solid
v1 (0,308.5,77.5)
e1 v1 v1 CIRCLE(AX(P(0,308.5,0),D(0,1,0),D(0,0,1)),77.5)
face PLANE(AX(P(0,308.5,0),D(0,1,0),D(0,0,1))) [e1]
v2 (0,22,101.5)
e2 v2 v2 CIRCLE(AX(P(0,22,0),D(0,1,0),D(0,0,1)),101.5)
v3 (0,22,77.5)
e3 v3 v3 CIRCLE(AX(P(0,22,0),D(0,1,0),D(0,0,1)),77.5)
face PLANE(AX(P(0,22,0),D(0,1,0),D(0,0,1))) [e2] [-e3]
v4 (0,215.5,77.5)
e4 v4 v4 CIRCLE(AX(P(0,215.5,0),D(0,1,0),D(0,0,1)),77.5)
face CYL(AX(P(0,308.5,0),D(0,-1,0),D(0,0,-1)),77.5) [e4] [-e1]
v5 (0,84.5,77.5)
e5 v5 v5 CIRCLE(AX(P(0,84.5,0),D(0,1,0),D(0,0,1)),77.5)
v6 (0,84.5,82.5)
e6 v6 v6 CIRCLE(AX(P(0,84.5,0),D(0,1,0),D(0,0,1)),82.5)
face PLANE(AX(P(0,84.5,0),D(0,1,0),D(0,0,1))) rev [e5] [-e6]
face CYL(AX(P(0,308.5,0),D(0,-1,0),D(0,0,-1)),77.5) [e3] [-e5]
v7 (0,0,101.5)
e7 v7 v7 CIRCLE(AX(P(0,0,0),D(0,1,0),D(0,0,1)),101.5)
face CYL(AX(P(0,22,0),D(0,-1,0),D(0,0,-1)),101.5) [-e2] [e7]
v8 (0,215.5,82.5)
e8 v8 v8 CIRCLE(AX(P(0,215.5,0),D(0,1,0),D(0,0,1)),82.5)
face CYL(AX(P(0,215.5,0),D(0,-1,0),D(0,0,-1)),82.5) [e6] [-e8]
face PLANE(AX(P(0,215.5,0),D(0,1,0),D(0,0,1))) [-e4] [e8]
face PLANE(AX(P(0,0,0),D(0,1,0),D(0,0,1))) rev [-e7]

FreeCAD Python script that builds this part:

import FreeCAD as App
import Part
import Sketcher

doc = App.newDocument("Part")
body = doc.addObject("PartDesign::Body", "Body")

# Sketch on XZ plane
sketch1 = body.newObject("Sketcher::SketchObject", "Sketch")
sketch1.AttachmentSupport = (doc.getObject("XZ_Plane"), [""])
sketch1.MapMode = "FlatFace"
sketch1.addGeometry(Part.Circle(App.Vector(0, 0, 0), App.Vector(0, 0, 1), 102), False)
sketch1.addConstraint(Sketcher.Constraint("Coincident", 0, 3, -1, 1))
sketch1.addConstraint(Sketcher.Constraint("Diameter", 0, 203.0))
pad1 = body.newObject("PartDesign::Pad", "Pad")
pad1.Profile = sketch1
pad1.Length = 22
pad1.Reversed = True

# Sketch on XZ plane
sketch2 = body.newObject("Sketcher::SketchObject", "Sketch001")
sketch2.AttachmentSupport = (doc.getObject("XZ_Plane"), [""])
sketch2.MapMode = "FlatFace"
sketch2.AttachmentOffset = App.Placement(App.Vector(0, 0, -22), App.Rotation())
sketch2.addGeometry(Part.Circle(App.Vector(0, 0, 0), App.Vector(0, 0, 1), 78), False)
sketch2.addConstraint(Sketcher.Constraint("Coincident", 0, 3, -1, 1))
sketch2.addConstraint(Sketcher.Constraint("Diameter", 0, 155.0))
pad2 = body.newObject("PartDesign::Pad", "Pad001")
pad2.Profile = sketch2
pad2.Length = 286.5
pad2.Reversed = True

# Sketch on XZ plane
sketch3 = body.newObject("Sketcher::SketchObject", "Sketch002")
sketch3.AttachmentSupport = (doc.getObject("XZ_Plane"), [""])
sketch3.MapMode = "FlatFace"
sketch3.AttachmentOffset = App.Placement(App.Vector(0, 0, -84.5), App.Rotation())
sketch3.addGeometry(Part.Circle(App.Vector(0, 0, 0), App.Vector(0, 0, 1), 82), False)
sketch3.addConstraint(Sketcher.Constraint("Coincident", 0, 3, -1, 1))
sketch3.addConstraint(Sketcher.Constraint("Diameter", 0, 165.0))
pad3 = body.newObject("PartDesign::Pad", "Pad002")
pad3.Profile = sketch3
pad3.Length = 131
pad3.Reversed = True

doc.recompute()
